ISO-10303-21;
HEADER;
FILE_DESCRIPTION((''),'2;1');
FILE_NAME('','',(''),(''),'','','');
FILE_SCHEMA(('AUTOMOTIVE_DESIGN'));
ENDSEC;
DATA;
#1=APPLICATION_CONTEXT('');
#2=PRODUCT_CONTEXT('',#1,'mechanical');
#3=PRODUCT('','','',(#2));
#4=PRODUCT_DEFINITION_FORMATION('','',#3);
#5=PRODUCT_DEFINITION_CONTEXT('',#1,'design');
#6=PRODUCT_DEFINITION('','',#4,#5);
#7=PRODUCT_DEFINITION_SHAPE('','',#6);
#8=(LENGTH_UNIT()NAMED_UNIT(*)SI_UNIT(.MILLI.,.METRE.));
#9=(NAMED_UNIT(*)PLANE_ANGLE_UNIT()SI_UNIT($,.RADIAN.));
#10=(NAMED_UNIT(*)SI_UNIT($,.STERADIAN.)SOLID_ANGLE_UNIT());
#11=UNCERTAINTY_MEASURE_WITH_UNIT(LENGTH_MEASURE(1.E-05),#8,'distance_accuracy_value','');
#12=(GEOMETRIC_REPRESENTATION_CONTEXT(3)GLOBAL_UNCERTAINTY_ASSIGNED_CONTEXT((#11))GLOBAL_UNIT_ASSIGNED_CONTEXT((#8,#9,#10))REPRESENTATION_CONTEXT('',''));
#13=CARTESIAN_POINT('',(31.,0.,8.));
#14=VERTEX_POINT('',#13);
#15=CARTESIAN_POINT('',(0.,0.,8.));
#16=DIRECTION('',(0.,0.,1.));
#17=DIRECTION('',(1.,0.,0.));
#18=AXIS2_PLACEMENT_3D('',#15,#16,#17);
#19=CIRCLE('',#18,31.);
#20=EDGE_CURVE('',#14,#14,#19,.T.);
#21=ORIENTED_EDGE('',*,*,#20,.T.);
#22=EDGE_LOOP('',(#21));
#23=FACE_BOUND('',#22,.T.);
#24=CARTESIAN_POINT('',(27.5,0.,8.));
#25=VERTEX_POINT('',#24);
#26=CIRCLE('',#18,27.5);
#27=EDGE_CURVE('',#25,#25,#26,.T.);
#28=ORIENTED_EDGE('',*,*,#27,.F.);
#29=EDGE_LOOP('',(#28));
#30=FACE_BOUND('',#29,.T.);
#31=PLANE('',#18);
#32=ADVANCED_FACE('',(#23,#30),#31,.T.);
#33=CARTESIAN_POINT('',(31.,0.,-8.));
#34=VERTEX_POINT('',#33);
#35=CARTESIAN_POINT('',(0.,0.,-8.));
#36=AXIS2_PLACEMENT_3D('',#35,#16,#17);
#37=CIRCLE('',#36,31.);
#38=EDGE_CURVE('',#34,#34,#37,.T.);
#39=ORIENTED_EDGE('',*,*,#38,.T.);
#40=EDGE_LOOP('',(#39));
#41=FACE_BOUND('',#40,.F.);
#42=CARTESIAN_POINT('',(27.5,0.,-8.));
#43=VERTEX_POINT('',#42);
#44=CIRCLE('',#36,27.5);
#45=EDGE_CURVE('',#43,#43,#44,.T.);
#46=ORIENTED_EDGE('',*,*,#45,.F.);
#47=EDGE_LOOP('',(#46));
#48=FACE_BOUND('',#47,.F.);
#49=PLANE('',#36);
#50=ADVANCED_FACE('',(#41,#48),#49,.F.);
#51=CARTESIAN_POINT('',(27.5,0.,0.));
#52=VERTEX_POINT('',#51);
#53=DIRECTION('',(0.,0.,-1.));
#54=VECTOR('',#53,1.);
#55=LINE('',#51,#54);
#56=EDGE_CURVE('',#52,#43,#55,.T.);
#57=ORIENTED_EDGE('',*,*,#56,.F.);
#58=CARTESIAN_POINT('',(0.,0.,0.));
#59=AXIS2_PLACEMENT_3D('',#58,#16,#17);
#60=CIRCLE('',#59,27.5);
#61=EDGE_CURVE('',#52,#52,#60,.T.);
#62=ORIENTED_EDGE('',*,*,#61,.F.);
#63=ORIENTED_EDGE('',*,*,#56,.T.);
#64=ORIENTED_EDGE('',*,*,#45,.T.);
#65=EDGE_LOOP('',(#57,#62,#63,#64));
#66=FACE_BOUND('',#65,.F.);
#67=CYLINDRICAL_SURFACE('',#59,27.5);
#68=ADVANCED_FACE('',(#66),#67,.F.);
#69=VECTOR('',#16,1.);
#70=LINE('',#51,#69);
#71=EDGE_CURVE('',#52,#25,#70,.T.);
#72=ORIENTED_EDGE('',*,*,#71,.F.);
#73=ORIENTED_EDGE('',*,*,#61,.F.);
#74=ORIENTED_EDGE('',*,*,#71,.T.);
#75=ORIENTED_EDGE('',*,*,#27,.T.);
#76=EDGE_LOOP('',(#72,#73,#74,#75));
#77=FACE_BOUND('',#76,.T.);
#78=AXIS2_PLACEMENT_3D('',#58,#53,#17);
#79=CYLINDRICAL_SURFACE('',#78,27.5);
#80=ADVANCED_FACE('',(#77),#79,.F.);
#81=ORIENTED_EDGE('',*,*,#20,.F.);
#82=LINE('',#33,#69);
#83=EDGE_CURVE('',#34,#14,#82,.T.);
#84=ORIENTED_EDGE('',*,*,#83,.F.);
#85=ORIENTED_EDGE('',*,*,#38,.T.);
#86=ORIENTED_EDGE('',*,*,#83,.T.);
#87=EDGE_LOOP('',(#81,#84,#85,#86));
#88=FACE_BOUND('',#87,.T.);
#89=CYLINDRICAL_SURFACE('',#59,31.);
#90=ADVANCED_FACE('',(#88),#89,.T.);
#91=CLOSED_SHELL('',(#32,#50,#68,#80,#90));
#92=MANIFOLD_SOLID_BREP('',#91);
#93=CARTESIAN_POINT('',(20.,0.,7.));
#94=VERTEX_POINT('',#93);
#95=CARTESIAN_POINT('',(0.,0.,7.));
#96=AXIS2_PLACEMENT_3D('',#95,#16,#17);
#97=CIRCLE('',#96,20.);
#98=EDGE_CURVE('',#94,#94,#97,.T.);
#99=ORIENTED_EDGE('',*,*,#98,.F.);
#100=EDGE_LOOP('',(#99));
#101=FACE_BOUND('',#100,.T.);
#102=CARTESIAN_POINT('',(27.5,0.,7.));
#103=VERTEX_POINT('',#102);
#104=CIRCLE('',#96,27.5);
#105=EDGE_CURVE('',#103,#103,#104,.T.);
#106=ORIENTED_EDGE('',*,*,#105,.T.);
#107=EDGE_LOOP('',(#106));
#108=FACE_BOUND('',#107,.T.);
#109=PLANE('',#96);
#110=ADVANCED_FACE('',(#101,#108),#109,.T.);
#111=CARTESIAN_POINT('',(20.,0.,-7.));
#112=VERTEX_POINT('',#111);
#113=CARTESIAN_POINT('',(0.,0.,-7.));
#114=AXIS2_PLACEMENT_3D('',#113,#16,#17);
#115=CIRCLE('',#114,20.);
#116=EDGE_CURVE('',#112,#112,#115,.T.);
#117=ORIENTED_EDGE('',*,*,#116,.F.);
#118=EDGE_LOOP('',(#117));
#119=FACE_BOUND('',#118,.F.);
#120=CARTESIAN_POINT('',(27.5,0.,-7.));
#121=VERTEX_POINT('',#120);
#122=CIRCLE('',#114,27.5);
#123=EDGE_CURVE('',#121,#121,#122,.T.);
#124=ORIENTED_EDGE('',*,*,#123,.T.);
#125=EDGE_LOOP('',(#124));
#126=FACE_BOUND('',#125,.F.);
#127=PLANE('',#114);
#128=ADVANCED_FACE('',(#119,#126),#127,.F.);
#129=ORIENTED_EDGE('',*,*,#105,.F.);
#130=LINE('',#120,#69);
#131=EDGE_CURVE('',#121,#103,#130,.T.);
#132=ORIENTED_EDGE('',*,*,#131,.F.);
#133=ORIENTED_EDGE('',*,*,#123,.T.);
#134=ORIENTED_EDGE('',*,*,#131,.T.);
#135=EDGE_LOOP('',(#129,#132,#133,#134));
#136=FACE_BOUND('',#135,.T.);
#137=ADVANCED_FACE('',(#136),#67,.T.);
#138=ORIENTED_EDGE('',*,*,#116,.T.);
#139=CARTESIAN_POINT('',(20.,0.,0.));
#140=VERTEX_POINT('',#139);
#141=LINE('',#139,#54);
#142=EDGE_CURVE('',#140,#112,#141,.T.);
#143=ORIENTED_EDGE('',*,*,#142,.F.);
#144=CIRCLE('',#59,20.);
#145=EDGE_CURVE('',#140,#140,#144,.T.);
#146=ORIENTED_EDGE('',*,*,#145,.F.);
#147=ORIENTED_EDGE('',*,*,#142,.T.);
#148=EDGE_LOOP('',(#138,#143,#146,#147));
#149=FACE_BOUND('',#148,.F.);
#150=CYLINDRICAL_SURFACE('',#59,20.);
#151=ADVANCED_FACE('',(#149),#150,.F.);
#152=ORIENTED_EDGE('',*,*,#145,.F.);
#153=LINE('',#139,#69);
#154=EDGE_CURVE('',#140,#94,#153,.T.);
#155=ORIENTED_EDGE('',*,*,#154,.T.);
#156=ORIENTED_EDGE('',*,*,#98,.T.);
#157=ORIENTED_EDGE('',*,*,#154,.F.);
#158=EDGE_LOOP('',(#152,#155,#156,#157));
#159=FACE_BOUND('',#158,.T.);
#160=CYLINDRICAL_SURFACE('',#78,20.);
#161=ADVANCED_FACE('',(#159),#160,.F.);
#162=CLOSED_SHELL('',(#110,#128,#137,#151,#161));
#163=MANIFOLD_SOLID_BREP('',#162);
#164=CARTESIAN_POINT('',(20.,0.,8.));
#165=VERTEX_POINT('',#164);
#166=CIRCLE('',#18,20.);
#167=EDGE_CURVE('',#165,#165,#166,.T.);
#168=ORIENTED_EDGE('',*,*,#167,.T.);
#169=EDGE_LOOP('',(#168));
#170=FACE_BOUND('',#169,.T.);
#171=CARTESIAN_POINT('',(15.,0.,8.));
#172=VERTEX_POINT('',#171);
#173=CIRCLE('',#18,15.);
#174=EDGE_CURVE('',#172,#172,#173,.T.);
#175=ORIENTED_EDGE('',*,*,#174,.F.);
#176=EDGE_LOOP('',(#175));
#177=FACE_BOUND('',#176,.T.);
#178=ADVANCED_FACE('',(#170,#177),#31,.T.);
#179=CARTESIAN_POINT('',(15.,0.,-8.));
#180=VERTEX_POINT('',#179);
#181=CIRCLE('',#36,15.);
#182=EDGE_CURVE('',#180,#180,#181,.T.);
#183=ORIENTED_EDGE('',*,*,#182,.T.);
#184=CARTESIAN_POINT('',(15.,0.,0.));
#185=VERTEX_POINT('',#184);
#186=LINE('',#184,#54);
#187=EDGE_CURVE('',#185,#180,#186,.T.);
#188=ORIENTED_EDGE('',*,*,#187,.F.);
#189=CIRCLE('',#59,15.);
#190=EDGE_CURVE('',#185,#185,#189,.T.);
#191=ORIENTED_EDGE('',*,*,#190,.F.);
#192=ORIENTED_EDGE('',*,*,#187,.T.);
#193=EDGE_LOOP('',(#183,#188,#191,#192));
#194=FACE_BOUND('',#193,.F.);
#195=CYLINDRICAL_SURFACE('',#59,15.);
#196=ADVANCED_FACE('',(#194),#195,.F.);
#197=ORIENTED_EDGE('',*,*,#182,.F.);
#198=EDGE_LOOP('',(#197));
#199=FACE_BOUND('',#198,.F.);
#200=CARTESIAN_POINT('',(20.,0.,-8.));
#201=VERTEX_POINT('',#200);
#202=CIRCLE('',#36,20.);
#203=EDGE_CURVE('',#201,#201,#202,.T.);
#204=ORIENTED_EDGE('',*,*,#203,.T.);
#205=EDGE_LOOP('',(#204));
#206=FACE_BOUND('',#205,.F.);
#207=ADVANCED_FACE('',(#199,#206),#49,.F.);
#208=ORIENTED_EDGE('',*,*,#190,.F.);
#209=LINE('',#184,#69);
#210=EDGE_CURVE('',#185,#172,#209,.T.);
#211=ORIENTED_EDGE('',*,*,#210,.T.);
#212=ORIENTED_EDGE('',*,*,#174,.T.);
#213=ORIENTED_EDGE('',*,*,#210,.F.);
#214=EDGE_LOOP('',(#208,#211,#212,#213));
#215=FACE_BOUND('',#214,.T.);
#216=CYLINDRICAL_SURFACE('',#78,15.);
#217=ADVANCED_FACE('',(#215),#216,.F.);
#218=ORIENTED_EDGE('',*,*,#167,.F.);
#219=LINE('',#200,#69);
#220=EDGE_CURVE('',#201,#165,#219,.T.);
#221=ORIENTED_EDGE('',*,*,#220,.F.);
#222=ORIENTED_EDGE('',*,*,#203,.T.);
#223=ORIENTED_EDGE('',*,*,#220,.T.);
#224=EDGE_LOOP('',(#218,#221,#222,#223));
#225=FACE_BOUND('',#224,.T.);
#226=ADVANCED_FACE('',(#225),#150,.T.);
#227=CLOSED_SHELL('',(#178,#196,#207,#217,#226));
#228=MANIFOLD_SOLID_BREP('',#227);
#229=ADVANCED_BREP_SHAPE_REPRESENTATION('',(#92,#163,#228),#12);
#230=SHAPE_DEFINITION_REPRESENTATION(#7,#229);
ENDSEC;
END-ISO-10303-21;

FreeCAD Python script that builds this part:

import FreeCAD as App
import Part
import Sketcher

V = App.Vector
Q = App.Units.Quantity

doc = App.newDocument("Part")
body = doc.addObject("PartDesign::Body", "Body")

# Sketch on XY plane
sketch1 = doc.addObject("Sketcher::SketchObject", "Sketch")
body.addObject(sketch1)
sketch1.AttachmentSupport = (doc.XY_Plane, [""])
sketch1.MapMode = "FlatFace"
sketch1.addGeometry([
    Part.Circle(V(0, 0, 0), V(0, 0, 1), 20),
    Part.Circle(V(0, 0, 0), V(0, 0, 1), 15),
], False)
sketch1.addConstraint([
    Sketcher.Constraint("Coincident", 0, 3, -1, 1),
    Sketcher.Constraint("Coincident", 1, 3, -1, 1),
    Sketcher.Constraint("Diameter", 0, Q("40 mm")),
    Sketcher.Constraint("Diameter", 1, Q("30 mm")),
])
pad1 = doc.addObject("PartDesign::Pad", "Pad")
body.addObject(pad1)
pad1.Profile = sketch1
pad1.Type = "TwoLengths"
pad1.Length = 8
pad1.Length2 = 8
body2 = doc.addObject("PartDesign::Body", "Body001")

# Sketch on XY plane
sketch2 = doc.addObject("Sketcher::SketchObject", "Sketch001")
body2.addObject(sketch2)
sketch2.AttachmentSupport = (doc.getObject("XY_Plane001"), [""])
sketch2.MapMode = "FlatFace"
sketch2.addGeometry([
    Part.Circle(V(0, 0, 0), V(0, 0, 1), 31),
    Part.Circle(V(0, 0, 0), V(0, 0, 1), 28),
], False)
sketch2.addConstraint([
    Sketcher.Constraint("Coincident", 0, 3, -1, 1),
    Sketcher.Constraint("Coincident", 1, 3, -1, 1),
    Sketcher.Constraint("Diameter", 0, Q("62 mm")),
    Sketcher.Constraint("Diameter", 1, Q("55 mm")),
])
pad2 = doc.addObject("PartDesign::Pad", "Pad001")
body2.addObject(pad2)
pad2.Profile = sketch2
pad2.Type = "TwoLengths"
pad2.Length = 8
pad2.Length2 = 8
body3 = doc.addObject("PartDesign::Body", "Body002")

# Sketch on XY plane
sketch3 = doc.addObject("Sketcher::SketchObject", "Sketch002")
body3.addObject(sketch3)
sketch3.AttachmentSupport = (doc.getObject("XY_Plane002"), [""])
sketch3.MapMode = "FlatFace"
sketch3.addGeometry([
    Part.Circle(V(0, 0, 0), V(0, 0, 1), 28),
    Part.Circle(V(0, 0, 0), V(0, 0, 1), 20),
], False)
sketch3.addConstraint([
    Sketcher.Constraint("Coincident", 0, 3, -1, 1),
    Sketcher.Constraint("Coincident", 1, 3, -1, 1),
    Sketcher.Constraint("Diameter", 0, Q("55 mm")),
    Sketcher.Constraint("Diameter", 1, Q("40 mm")),
])
pad3 = doc.addObject("PartDesign::Pad", "Pad002")
body3.addObject(pad3)
pad3.Profile = sketch3
pad3.Type = "TwoLengths"
pad3.Length = 7
pad3.Length2 = 7

doc.recompute()
